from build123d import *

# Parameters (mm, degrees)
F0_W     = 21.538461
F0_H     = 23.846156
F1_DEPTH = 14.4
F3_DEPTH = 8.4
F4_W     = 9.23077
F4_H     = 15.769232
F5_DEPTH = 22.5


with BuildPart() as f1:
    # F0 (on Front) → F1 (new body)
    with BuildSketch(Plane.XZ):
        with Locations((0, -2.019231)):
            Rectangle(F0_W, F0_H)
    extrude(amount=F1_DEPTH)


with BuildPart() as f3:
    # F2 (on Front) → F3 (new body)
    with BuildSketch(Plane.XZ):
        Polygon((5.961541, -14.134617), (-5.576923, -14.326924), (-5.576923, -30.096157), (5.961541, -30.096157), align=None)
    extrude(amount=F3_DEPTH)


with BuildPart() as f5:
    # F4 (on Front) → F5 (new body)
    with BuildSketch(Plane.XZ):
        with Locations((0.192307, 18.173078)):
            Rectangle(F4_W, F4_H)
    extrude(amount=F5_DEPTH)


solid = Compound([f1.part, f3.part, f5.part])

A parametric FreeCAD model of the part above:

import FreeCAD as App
import Part
import Sketcher
Q = App.Units.Quantity


def add_polygon(sketch, points):
    """Adds a closed chain of lines whose ends are joined by coincident constraints."""
    first, n = sketch.GeometryCount, len(points)
    for a, b in zip(points, points[1:] + points[:1]):
        sketch.addGeometry(Part.LineSegment(App.Vector(*a, 0), App.Vector(*b, 0)), False)
    for i in range(n):
        sketch.addConstraint(Sketcher.Constraint("Coincident", first + i, 2, first + (i + 1) % n, 1))

doc = App.newDocument("Part")
body = doc.addObject("PartDesign::Body", "Body")

sketch1 = doc.addObject("Sketcher::SketchObject", "Sketch")
body.addObject(sketch1)
sketch1.AttachmentSupport = (doc.XZ_Plane, [""])
sketch1.MapMode = "FlatFace"
add_polygon(sketch1, [(-11, 10), (-11, -14), (11, -14), (11, 10)])
sketch1.addConstraint(Sketcher.Constraint("Vertical", 0))
sketch1.addConstraint(Sketcher.Constraint("Horizontal", 1))
sketch1.addConstraint(Sketcher.Constraint("Vertical", 2))
sketch1.addConstraint(Sketcher.Constraint("Horizontal", 3))
sketch1.addConstraint(Sketcher.Constraint("DistanceX", 1, 1, 1, 2, Q("21.538461 mm")))
sketch1.addConstraint(Sketcher.Constraint("DistanceY", 0, 2, 0, 1, Q("23.846156 mm")))
sketch1.addConstraint(Sketcher.Constraint("DistanceX", 0, 2, -1, 1, Q("10.769231 mm")))
sketch1.addConstraint(Sketcher.Constraint("DistanceY", 0, 2, -1, 1, Q("13.942309 mm")))
pad1 = doc.addObject("PartDesign::Pad", "Pad")
body.addObject(pad1)
pad1.Profile = sketch1
pad1.Length = 14.4
body2 = doc.addObject("PartDesign::Body", "Body001")

sketch2 = doc.addObject("Sketcher::SketchObject", "Sketch001")
body2.addObject(sketch2)
sketch2.AttachmentSupport = (doc.getObject("XZ_Plane001"), [""])
sketch2.MapMode = "FlatFace"
add_polygon(sketch2, [(6, -14), (-6, -14), (-6, -30), (6, -30)])
sketch2.addConstraint(Sketcher.Constraint("Vertical", 1))
sketch2.addConstraint(Sketcher.Constraint("Horizontal", 2))
sketch2.addConstraint(Sketcher.Constraint("Vertical", 3))
sketch2.addConstraint(Sketcher.Constraint("DistanceY", 3, 1, 3, 2, Q("15.96154 mm")))
sketch2.addConstraint(Sketcher.Constraint("DistanceX", 2, 1, 2, 2, Q("11.538464 mm")))
sketch2.addConstraint(Sketcher.Constraint("DistanceY", 1, 2, 1, 1, Q("15.769233 mm")))
sketch2.addConstraint(Sketcher.Constraint("DistanceX", -1, 1, 2, 2, Q("5.961541 mm")))
sketch2.addConstraint(Sketcher.Constraint("DistanceY", 0, 2, -1, 1, Q("14.326924 mm")))
pad2 = doc.addObject("PartDesign::Pad", "Pad001")
body2.addObject(pad2)
pad2.Profile = sketch2
pad2.Length = 8.4
body3 = doc.addObject("PartDesign::Body", "Body002")

sketch3 = doc.addObject("Sketcher::SketchObject", "Sketch002")
body3.addObject(sketch3)
sketch3.AttachmentSupport = (doc.getObject("XZ_Plane002"), [""])
sketch3.MapMode = "FlatFace"
add_polygon(sketch3, [(-4, 26), (-4, 10), (5, 10), (5, 26)])
sketch3.addConstraint(Sketcher.Constraint("Vertical", 0))
sketch3.addConstraint(Sketcher.Constraint("Horizontal", 1))
sketch3.addConstraint(Sketcher.Constraint("Vertical", 2))
sketch3.addConstraint(Sketcher.Constraint("Horizontal", 3))
sketch3.addConstraint(Sketcher.Constraint("DistanceX", 1, 1, 1, 2, Q("9.23077 mm")))
sketch3.addConstraint(Sketcher.Constraint("DistanceY", 0, 2, 0, 1, Q("15.769232 mm")))
sketch3.addConstraint(Sketcher.Constraint("DistanceX", 0, 2, -1, 1, Q("4.423078 mm")))
sketch3.addConstraint(Sketcher.Constraint("DistanceY", -1, 1, 0, 2, Q("10.288462 mm")))
pad3 = doc.addObject("PartDesign::Pad", "Pad002")
body3.addObject(pad3)
pad3.Profile = sketch3
pad3.Length = 22.5

doc.recompute()
